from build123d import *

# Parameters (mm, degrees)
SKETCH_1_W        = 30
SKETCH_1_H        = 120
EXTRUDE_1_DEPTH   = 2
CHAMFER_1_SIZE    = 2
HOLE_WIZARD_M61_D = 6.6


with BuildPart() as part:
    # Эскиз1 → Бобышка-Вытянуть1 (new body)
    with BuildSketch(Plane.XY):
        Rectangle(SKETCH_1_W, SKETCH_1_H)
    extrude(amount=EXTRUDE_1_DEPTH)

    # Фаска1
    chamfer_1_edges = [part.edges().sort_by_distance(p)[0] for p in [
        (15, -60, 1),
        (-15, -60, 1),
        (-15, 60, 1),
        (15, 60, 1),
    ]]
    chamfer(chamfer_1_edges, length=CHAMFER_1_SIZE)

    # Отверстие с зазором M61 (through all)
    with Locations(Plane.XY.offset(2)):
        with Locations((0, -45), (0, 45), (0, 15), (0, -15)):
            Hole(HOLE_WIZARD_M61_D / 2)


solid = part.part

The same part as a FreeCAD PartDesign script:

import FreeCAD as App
import Part
import Sketcher
from FreeCAD import Vector


def edges_at(feature, points):
    """Names of the edges that pass closest to the given points."""
    edges = feature.Shape.Edges
    near = lambda p: min(range(len(edges)), key=lambda i: edges[i].distToShape(Part.Vertex(*p))[0])
    return sorted({f"Edge{near(p) + 1}" for p in points})


def add_polygon(sketch, points):
    """Adds a closed chain of lines whose ends are joined by coincident constraints."""
    first, n = sketch.GeometryCount, len(points)
    for a, b in zip(points, points[1:] + points[:1]):
        sketch.addGeometry(Part.LineSegment(App.Vector(*a, 0), App.Vector(*b, 0)), False)
    for i in range(n):
        sketch.addConstraint(Sketcher.Constraint("Coincident", first + i, 2, first + (i + 1) % n, 1))

doc = App.newDocument("Part")
body = doc.addObject("PartDesign::Body", "Body")

sketch1 = body.newObject("Sketcher::SketchObject", "Sketch")
sketch1.AttachmentSupport = (doc.getObject("XY_Plane"), [""])
sketch1.MapMode = "FlatFace"
add_polygon(sketch1, [(-15, 60), (-15, -60), (15, -60), (15, 60)])
sketch1.addConstraint(Sketcher.Constraint("Vertical", 0))
sketch1.addConstraint(Sketcher.Constraint("Horizontal", 1))
sketch1.addConstraint(Sketcher.Constraint("Vertical", 2))
sketch1.addConstraint(Sketcher.Constraint("Horizontal", 3))
sketch1.addConstraint(Sketcher.Constraint("Symmetric", 0, 2, 2, 2, -1, 1))
sketch1.addConstraint(Sketcher.Constraint("DistanceX", 1, 1, 1, 2, 30.0))
sketch1.addConstraint(Sketcher.Constraint("DistanceY", 0, 2, 0, 1, 120.0))
pad1 = body.newObject("PartDesign::Pad", "Pad")
pad1.Profile = sketch1
pad1.Length = 2
doc.recompute()

chamfer = body.newObject("PartDesign::Chamfer", "Chamfer")
chamfer.Base = (pad1, edges_at(pad1, [
    (15, -60, 1),
    (-15, -60, 1),
    (-15, 60, 1),
    (15, 60, 1),
]))
chamfer.Size = 2

sketch2 = body.newObject("Sketcher::SketchObject", "Sketch001")
sketch2.AttachmentSupport = (doc.getObject("XY_Plane"), [""])
sketch2.MapMode = "FlatFace"
sketch2.AttachmentOffset = App.Placement(Vector(0, 0, 2), App.Rotation())
sketch2.addGeometry(Part.Circle(Vector(0, -45, 0), Vector(0, 0, 1), 3.3), False)
sketch2.addGeometry(Part.Circle(Vector(0, 45, 0), Vector(0, 0, 1), 3.3), False)
sketch2.addGeometry(Part.Circle(Vector(0, 15, 0), Vector(0, 0, 1), 3.3), False)
sketch2.addGeometry(Part.Circle(Vector(0, -15, 0), Vector(0, 0, 1), 3.3), False)
sketch2.addConstraint(Sketcher.Constraint("Equal", 0, 1))
sketch2.addConstraint(Sketcher.Constraint("Equal", 1, 2))
sketch2.addConstraint(Sketcher.Constraint("Equal", 2, 3))
sketch2.addConstraint(Sketcher.Constraint("Symmetric", 0, 3, 1, 3, -1, 1))
sketch2.addConstraint(Sketcher.Constraint("Symmetric", 2, 3, 3, 3, -1, 1))
sketch2.addConstraint(Sketcher.Constraint("PointOnObject", 0, 3, -2))
sketch2.addConstraint(Sketcher.Constraint("PointOnObject", 2, 3, -2))
sketch2.addConstraint(Sketcher.Constraint("Diameter", 0, 6.6))
sketch2.addConstraint(Sketcher.Constraint("DistanceY", 0, 3, -1, 1, 45.0))
sketch2.addConstraint(Sketcher.Constraint("DistanceY", -1, 1, 2, 3, 15.0))
doc.recompute()
hole = body.newObject("PartDesign::Hole", "Hole")
hole.Profile = sketch2
hole.ThreadType = "None"
hole.Diameter = 6.6
hole.DepthType = "ThroughAll"

doc.recompute()
